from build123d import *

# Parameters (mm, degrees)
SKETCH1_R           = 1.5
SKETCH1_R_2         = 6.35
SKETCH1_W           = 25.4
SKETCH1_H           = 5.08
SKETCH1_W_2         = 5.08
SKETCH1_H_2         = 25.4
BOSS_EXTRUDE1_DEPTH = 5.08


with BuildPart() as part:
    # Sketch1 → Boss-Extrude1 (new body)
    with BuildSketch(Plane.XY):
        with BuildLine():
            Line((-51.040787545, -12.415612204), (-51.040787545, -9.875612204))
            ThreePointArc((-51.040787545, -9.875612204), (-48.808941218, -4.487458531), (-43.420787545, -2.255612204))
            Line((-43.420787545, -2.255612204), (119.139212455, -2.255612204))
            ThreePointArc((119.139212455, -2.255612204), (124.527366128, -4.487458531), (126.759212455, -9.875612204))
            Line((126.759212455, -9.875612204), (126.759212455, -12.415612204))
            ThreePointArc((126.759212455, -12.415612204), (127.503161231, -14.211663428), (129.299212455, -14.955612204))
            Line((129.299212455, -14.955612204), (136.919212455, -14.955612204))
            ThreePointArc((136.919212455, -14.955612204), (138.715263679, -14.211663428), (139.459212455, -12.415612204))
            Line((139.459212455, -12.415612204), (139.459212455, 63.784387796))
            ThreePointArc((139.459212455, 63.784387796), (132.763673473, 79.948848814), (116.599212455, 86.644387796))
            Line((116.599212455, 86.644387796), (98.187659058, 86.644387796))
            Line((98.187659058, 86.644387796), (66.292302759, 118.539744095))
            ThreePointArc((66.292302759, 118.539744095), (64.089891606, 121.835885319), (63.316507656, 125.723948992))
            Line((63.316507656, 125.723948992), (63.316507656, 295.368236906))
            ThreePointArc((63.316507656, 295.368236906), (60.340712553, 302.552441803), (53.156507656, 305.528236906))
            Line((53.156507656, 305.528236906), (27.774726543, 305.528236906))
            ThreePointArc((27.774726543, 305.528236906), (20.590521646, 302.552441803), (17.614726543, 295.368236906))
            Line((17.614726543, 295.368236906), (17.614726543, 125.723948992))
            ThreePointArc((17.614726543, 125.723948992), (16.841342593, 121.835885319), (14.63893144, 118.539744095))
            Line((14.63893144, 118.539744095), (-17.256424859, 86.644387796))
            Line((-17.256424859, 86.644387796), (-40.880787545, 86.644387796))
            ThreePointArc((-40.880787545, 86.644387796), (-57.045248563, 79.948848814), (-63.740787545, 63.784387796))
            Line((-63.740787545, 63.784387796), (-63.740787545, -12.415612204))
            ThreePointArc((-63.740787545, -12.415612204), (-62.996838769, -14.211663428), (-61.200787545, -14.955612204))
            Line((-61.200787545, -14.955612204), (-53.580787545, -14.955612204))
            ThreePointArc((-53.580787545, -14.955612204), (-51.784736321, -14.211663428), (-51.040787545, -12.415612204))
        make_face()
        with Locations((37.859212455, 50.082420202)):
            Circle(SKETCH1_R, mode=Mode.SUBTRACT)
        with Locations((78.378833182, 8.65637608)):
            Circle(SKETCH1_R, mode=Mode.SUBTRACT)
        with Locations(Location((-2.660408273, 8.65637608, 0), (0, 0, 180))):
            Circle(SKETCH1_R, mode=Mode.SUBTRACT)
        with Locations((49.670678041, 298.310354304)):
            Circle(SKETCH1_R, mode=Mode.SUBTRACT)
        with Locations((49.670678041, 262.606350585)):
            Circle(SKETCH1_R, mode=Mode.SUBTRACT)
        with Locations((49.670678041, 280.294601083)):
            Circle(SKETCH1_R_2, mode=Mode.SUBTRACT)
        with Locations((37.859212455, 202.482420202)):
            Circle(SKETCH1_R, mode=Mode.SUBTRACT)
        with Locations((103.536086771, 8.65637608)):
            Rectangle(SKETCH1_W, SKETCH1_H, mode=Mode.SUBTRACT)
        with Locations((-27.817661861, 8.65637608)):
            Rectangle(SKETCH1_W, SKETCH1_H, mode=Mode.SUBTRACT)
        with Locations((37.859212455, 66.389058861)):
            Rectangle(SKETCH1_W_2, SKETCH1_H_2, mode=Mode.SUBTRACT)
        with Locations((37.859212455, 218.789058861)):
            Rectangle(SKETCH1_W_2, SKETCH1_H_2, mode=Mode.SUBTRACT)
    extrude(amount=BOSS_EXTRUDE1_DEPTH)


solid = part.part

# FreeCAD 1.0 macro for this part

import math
import FreeCAD as App
import Part
import Sketcher
from FreeCAD import Vector
Q = App.Units.Quantity


def add_polygon(sketch, points):
    """Adds a closed chain of lines whose ends are joined by coincident constraints."""
    first, n = sketch.GeometryCount, len(points)
    for a, b in zip(points, points[1:] + points[:1]):
        sketch.addGeometry(Part.LineSegment(App.Vector(*a, 0), App.Vector(*b, 0)), False)
    for i in range(n):
        sketch.addConstraint(Sketcher.Constraint("Coincident", first + i, 2, first + (i + 1) % n, 1))

doc = App.newDocument("Part")
params = doc.addObject("Spreadsheet::Sheet", "Params")
for row, (alias, value) in enumerate([
    ("sketch1_diameter", "0.5 in"),
    ("sketch1_radius", "0.3 in"),
    ("sketch1_radius2", "0.1 in"),
    ("sketch1_radius3", "0.9 in"),
    ("sketch1_radius4", "0.4 in"),
    ("pad1_length", "0.2 in"),
], start=1):
    params.set(f"A{row}", alias)
    params.set(f"B{row}", "=" + value)
    params.setAlias(f"B{row}", alias)

body = doc.addObject("PartDesign::Body", "Body")

sketch1 = doc.addObject("Sketcher::SketchObject", "Sketch")
body.addObject(sketch1)
sketch1.AttachmentSupport = (doc.XY_Plane, [""])
sketch1.MapMode = "FlatFace"
sketch1.addGeometry(Part.LineSegment(Vector(-51, -12.4, 0), Vector(-51, -9.9, 0)), False)
sketch1.addGeometry(Part.ArcOfCircle(Part.Circle(Vector(-43.4, -9.9, 0), Vector(0, 0, 1), 7.6), math.radians(90), math.radians(180)), False)
sketch1.addGeometry(Part.LineSegment(Vector(-43.4, -2.3, 0), Vector(119.1, -2.3, 0)), False)
sketch1.addGeometry(Part.ArcOfCircle(Part.Circle(Vector(119.1, -9.9, 0), Vector(0, 0, 1), 7.6), math.radians(0), math.radians(90)), False)
sketch1.addGeometry(Part.LineSegment(Vector(126.8, -9.9, 0), Vector(126.8, -12.4, 0)), False)
sketch1.addGeometry(Part.ArcOfCircle(Part.Circle(Vector(129.3, -12.4, 0), Vector(0, 0, 1), 2.5), math.radians(-180), math.radians(-90)), False)
sketch1.addGeometry(Part.LineSegment(Vector(129.3, -15, 0), Vector(136.9, -15, 0)), False)
sketch1.addGeometry(Part.ArcOfCircle(Part.Circle(Vector(136.9, -12.4, 0), Vector(0, 0, 1), 2.5), math.radians(-90), math.radians(0)), False)
sketch1.addGeometry(Part.LineSegment(Vector(139.5, -12.4, 0), Vector(139.5, 63.8, 0)), False)
sketch1.addGeometry(Part.ArcOfCircle(Part.Circle(Vector(116.6, 63.8, 0), Vector(0, 0, 1), 22.9), math.radians(0), math.radians(90)), False)
sketch1.addGeometry(Part.LineSegment(Vector(116.6, 86.6, 0), Vector(98.2, 86.6, 0)), False)
sketch1.addGeometry(Part.LineSegment(Vector(98.2, 86.6, 0), Vector(66.3, 118.5, 0)), False)
sketch1.addGeometry(Part.ArcOfCircle(Part.Circle(Vector(73.5, 125.7, 0), Vector(0, 0, 1), 10.2), math.radians(-180), math.radians(-135)), False)
sketch1.addGeometry(Part.LineSegment(Vector(63.3, 125.7, 0), Vector(63.3, 295.4, 0)), False)
sketch1.addGeometry(Part.ArcOfCircle(Part.Circle(Vector(53.2, 295.4, 0), Vector(0, 0, 1), 10.2), math.radians(0), math.radians(90)), False)
sketch1.addGeometry(Part.LineSegment(Vector(53.2, 305.5, 0), Vector(27.8, 305.5, 0)), False)
sketch1.addGeometry(Part.ArcOfCircle(Part.Circle(Vector(27.8, 295.4, 0), Vector(0, 0, 1), 10.2), math.radians(90), math.radians(180)), False)
sketch1.addGeometry(Part.LineSegment(Vector(17.6, 295.4, 0), Vector(17.6, 125.7, 0)), False)
sketch1.addGeometry(Part.ArcOfCircle(Part.Circle(Vector(7.5, 125.7, 0), Vector(0, 0, 1), 10.2), math.radians(-45), math.radians(0)), False)
sketch1.addGeometry(Part.LineSegment(Vector(14.6, 118.5, 0), Vector(-17.3, 86.6, 0)), False)
sketch1.addGeometry(Part.LineSegment(Vector(-17.3, 86.6, 0), Vector(-40.9, 86.6, 0)), False)
sketch1.addGeometry(Part.ArcOfCircle(Part.Circle(Vector(-40.9, 63.8, 0), Vector(0, 0, 1), 22.9), math.radians(90), math.radians(180)), False)
sketch1.addGeometry(Part.LineSegment(Vector(-63.7, 63.8, 0), Vector(-63.7, -12.4, 0)), False)
sketch1.addGeometry(Part.ArcOfCircle(Part.Circle(Vector(-61.2, -12.4, 0), Vector(0, 0, 1), 2.5), math.radians(-180), math.radians(-90)), False)
sketch1.addGeometry(Part.LineSegment(Vector(-61.2, -15, 0), Vector(-53.6, -15, 0)), False)
sketch1.addGeometry(Part.ArcOfCircle(Part.Circle(Vector(-53.6, -12.4, 0), Vector(0, 0, 1), 2.5), math.radians(-90), math.radians(0)), False)
add_polygon(sketch1, [(-15.1, 6.1), (-40.5, 6.1), (-40.5, 11.2), (-15.1, 11.2)])
sketch1.addGeometry(Part.Circle(Vector(-2.7, 8.7, 0), Vector(0, 0, 1), 1.5), False)
sketch1.addGeometry(Part.Circle(Vector(37.9, 50.1, 0), Vector(0, 0, 1), 1.5), False)
add_polygon(sketch1, [(40.4, 53.7), (35.3, 53.7), (35.3, 79.1), (40.4, 79.1)])
sketch1.addGeometry(Part.Circle(Vector(78.4, 8.7, 0), Vector(0, 0, 1), 1.5), False)
add_polygon(sketch1, [(116.2, 6.1), (90.8, 6.1), (90.8, 11.2), (116.2, 11.2)])
sketch1.addGeometry(Part.Circle(Vector(37.9, 202.5, 0), Vector(0, 0, 1), 1.5), False)
add_polygon(sketch1, [(40.4, 206.1), (35.3, 206.1), (35.3, 231.5), (40.4, 231.5)])
sketch1.addGeometry(Part.Circle(Vector(49.7, 262.6, 0), Vector(0, 0, 1), 1.5), False)
sketch1.addGeometry(Part.Circle(Vector(49.7, 280.3, 0), Vector(0, 0, 1), 6.3), False)
sketch1.addGeometry(Part.Circle(Vector(49.7, 298.3, 0), Vector(0, 0, 1), 1.5), False)
sketch1.addConstraint(Sketcher.Constraint("Tangent", 0, 2, 1, 2))
sketch1.addConstraint(Sketcher.Constraint("Tangent", 1, 1, 2, 1))
sketch1.addConstraint(Sketcher.Constraint("Tangent", 2, 2, 3, 2))
sketch1.addConstraint(Sketcher.Constraint("Tangent", 3, 1, 4, 1))
sketch1.addConstraint(Sketcher.Constraint("Tangent", 4, 2, 5, 1))
sketch1.addConstraint(Sketcher.Constraint("Tangent", 5, 2, 6, 1))
sketch1.addConstraint(Sketcher.Constraint("Tangent", 6, 2, 7, 1))
sketch1.addConstraint(Sketcher.Constraint("Tangent", 7, 2, 8, 1))
sketch1.addConstraint(Sketcher.Constraint("Tangent", 8, 2, 9, 1))
sketch1.addConstraint(Sketcher.Constraint("Tangent", 9, 2, 10, 1))
sketch1.addConstraint(Sketcher.Constraint("Coincident", 10, 2, 11, 1))
sketch1.addConstraint(Sketcher.Constraint("Tangent", 11, 2, 12, 2))
sketch1.addConstraint(Sketcher.Constraint("Tangent", 12, 1, 13, 1))
sketch1.addConstraint(Sketcher.Constraint("Tangent", 13, 2, 14, 1))
sketch1.addConstraint(Sketcher.Constraint("Tangent", 14, 2, 15, 1))
sketch1.addConstraint(Sketcher.Constraint("Tangent", 15, 2, 16, 1))
sketch1.addConstraint(Sketcher.Constraint("Tangent", 16, 2, 17, 1))
sketch1.addConstraint(Sketcher.Constraint("Tangent", 17, 2, 18, 2))
sketch1.addConstraint(Sketcher.Constraint("Tangent", 18, 1, 19, 1))
sketch1.addConstraint(Sketcher.Constraint("Coincident", 19, 2, 20, 1))
sketch1.addConstraint(Sketcher.Constraint("Tangent", 20, 2, 21, 1))
sketch1.addConstraint(Sketcher.Constraint("Tangent", 21, 2, 22, 1))
sketch1.addConstraint(Sketcher.Constraint("Tangent", 22, 2, 23, 1))
sketch1.addConstraint(Sketcher.Constraint("Tangent", 23, 2, 24, 1))
sketch1.addConstraint(Sketcher.Constraint("Tangent", 24, 2, 25, 1))
sketch1.addConstraint(Sketcher.Constraint("Tangent", 25, 2, 0, 1))
sketch1.addConstraint(Sketcher.Constraint("Vertical", 0))
sketch1.addConstraint(Sketcher.Constraint("Horizontal", 2))
sketch1.addConstraint(Sketcher.Constraint("Vertical", 4))
sketch1.addConstraint(Sketcher.Constraint("Horizontal", 6))
sketch1.addConstraint(Sketcher.Constraint("Vertical", 8))
sketch1.addConstraint(Sketcher.Constraint("Horizontal", 10))
sketch1.addConstraint(Sketcher.Constraint("Vertical", 13))
sketch1.addConstraint(Sketcher.Constraint("Horizontal", 15))
sketch1.addConstraint(Sketcher.Constraint("Vertical", 17))
sketch1.addConstraint(Sketcher.Constraint("Horizontal", 20))
sketch1.addConstraint(Sketcher.Constraint("Vertical", 22))
sketch1.addConstraint(Sketcher.Constraint("Horizontal", 24))
sketch1.addConstraint(Sketcher.Constraint("Horizontal", 26))
sketch1.addConstraint(Sketcher.Constraint("Vertical", 27))
sketch1.addConstraint(Sketcher.Constraint("Horizontal", 28))
sketch1.addConstraint(Sketcher.Constraint("Vertical", 29))
sketch1.addConstraint(Sketcher.Constraint("Horizontal", 32))
sketch1.addConstraint(Sketcher.Constraint("Vertical", 33))
sketch1.addConstraint(Sketcher.Constraint("Horizontal", 34))
sketch1.addConstraint(Sketcher.Constraint("Vertical", 35))
sketch1.addConstraint(Sketcher.Constraint("Horizontal", 37))
sketch1.addConstraint(Sketcher.Constraint("Vertical", 38))
sketch1.addConstraint(Sketcher.Constraint("Horizontal", 39))
sketch1.addConstraint(Sketcher.Constraint("Vertical", 40))
sketch1.addConstraint(Sketcher.Constraint("Horizontal", 42))
sketch1.addConstraint(Sketcher.Constraint("Vertical", 43))
sketch1.addConstraint(Sketcher.Constraint("Horizontal", 44))
sketch1.addConstraint(Sketcher.Constraint("Vertical", 45))
sketch1.addConstraint(Sketcher.Constraint("Equal", 1, 3))
sketch1.addConstraint(Sketcher.Constraint("Equal", 5, 7))
sketch1.addConstraint(Sketcher.Constraint("Equal", 12, 14))
sketch1.addConstraint(Sketcher.Constraint("Equal", 14, 16))
sketch1.addConstraint(Sketcher.Constraint("Equal", 16, 18))
sketch1.addConstraint(Sketcher.Constraint("Equal", 9, 21))
sketch1.addConstraint(Sketcher.Constraint("Equal", 7, 23))
sketch1.addConstraint(Sketcher.Constraint("Equal", 23, 25))
sketch1.addConstraint(Sketcher.Constraint("Equal", 30, 31))
sketch1.addConstraint(Sketcher.Constraint("Equal", 31, 36))
sketch1.addConstraint(Sketcher.Constraint("Equal", 36, 41))
sketch1.addConstraint(Sketcher.Constraint("Equal", 41, 46))
sketch1.addConstraint(Sketcher.Constraint("Equal", 46, 48))
sketch1.addConstraint(Sketcher.Constraint("Perpendicular", 11, 19))
sketch1.addConstraint(Sketcher.Constraint("Horizontal", 12, 3, 18, 3))
sketch1.addConstraint(Sketcher.Constraint("Horizontal", 9, 3, 21, 3))
sketch1.addConstraint(Sketcher.Constraint("Horizontal", 7, 3, 23, 3))
sketch1.addConstraint(Sketcher.Constraint("Horizontal", 30, 3, 36, 3))
sketch1.addConstraint(Sketcher.Constraint("Horizontal", 11, 2, 18, 1))
sketch1.addConstraint(Sketcher.Constraint("Horizontal", 29, 2, 37, 2))
sketch1.addConstraint(Sketcher.Constraint("Horizontal", 28, 2, 38, 2))
sketch1.addConstraint(Sketcher.Constraint("Vertical", 31, 3, 41, 3))
sketch1.addConstraint(Sketcher.Constraint("Vertical", 46, 3, 47, 3))
sketch1.addConstraint(Sketcher.Constraint("Vertical", 47, 3, 48, 3))
sketch1.addConstraint(Sketcher.Constraint("Vertical", 33, 2, 42, 2))
sketch1.addConstraint(Sketcher.Constraint("Vertical", 35, 2, 44, 2))
sketch1.addConstraint(Sketcher.Constraint("Equal", 6, 24))
sketch1.addConstraint(Sketcher.Constraint("Equal", 28, 37))
sketch1.addConstraint(Sketcher.Constraint("Equal", 44, 27))
sketch1.addConstraint(Sketcher.Constraint("Equal", 39, 33))
sketch1.addConstraint(Sketcher.Constraint("Equal", 35, 43))
sketch1.addConstraint(Sketcher.Constraint("Diameter", 47, Q("0.5 in")))
sketch1.addConstraint(Sketcher.Constraint("Radius", 1, Q("0.3 in")))
sketch1.addConstraint(Sketcher.Constraint("Radius", 5, Q("0.1 in")))
sketch1.addConstraint(Sketcher.Constraint("Radius", 9, Q("0.9 in")))
sketch1.addConstraint(Sketcher.Constraint("Radius", 12, Q("0.4 in")))
sketch1.addConstraint(Sketcher.Constraint("DistanceX", 26, 2, 26, 1, Q("1 in")))
sketch1.addConstraint(Sketcher.Constraint("DistanceY", 8, 1, 8, 2, Q("3 in")))
sketch1.addConstraint(Sketcher.Constraint("DistanceX", 2, 1, 2, 2, Q("6.4 in")))
sketch1.addConstraint(Sketcher.Constraint("DistanceX", 6, 1, 6, 2, Q("0.3 in")))
sketch1.addConstraint(Sketcher.Constraint("DistanceX", 32, 2, 32, 1, Q("0.2 in")))
sketch1.addConstraint(Sketcher.Constraint("DistanceY", 0, 1, 0, 2, Q("0.1 in")))
sketch1.addConstraint(Sketcher.Constraint("Diameter", 30, 3.0))
sketch1.addConstraint(Sketcher.Constraint("DistanceX", 15, 2, 15, 1, 25.381781))
sketch1.addConstraint(Sketcher.Constraint("DistanceY", -1, 1, 47, 3, 280.294601))
sketch1.addConstraint(Sketcher.Constraint("DistanceX", 10, 2, 10, 1, 18.411553))
sketch1.addConstraint(Sketcher.Constraint("DistanceX", 20, 2, 20, 1, 23.624363))
sketch1.addConstraint(Sketcher.Constraint("DistanceY", 13, 1, 13, 2, 169.644288))
sketch1.addConstraint(Sketcher.Constraint("DistanceY", -1, 1, 12, 3, 125.723949))
sketch1.addConstraint(Sketcher.Constraint("DistanceX", 30, 3, -1, 1, 2.660408))
sketch1.addConstraint(Sketcher.Constraint("DistanceY", -1, 1, 31, 3, 50.08242))
sketch1.addConstraint(Sketcher.Constraint("DistanceY", -1, 1, 41, 3, 202.48242))
sketch1.addConstraint(Sketcher.Constraint("DistanceX", -1, 1, 46, 3, 49.670678))
sketch1.addConstraint(Sketcher.Constraint("DistanceY", -1, 1, 46, 3, 262.606351))
sketch1.addConstraint(Sketcher.Constraint("DistanceX", -1, 1, 10, 2, 98.187659))
sketch1.addConstraint(Sketcher.Constraint("DistanceX", 26, 2, -1, 1, 40.517662))
sketch1.addConstraint(Sketcher.Constraint("DistanceY", -1, 1, 32, 2, 53.689059))
sketch1.addConstraint(Sketcher.Constraint("DistanceY", -1, 1, 42, 2, 206.089059))
sketch1.addConstraint(Sketcher.Constraint("DistanceY", -1, 1, 30, 3, 8.656376))
sketch1.addConstraint(Sketcher.Constraint("DistanceX", -1, 1, 31, 3, 37.859212))
sketch1.addConstraint(Sketcher.Constraint("DistanceX", -1, 1, 36, 3, 78.378833))
sketch1.addConstraint(Sketcher.Constraint("DistanceY", -1, 1, 48, 3, 298.310354))
sketch1.addConstraint(Sketcher.Constraint("DistanceY", -1, 1, 26, 2, 6.116376))
sketch1.addConstraint(Sketcher.Constraint("DistanceX", -1, 1, 32, 2, 35.319212))
sketch1.addConstraint(Sketcher.Constraint("DistanceX", -1, 1, 37, 2, 90.836087))
sketch1.setExpression("Constraints[101]", "Params.sketch1_diameter")
sketch1.setExpression("Constraints[102]", "Params.sketch1_radius")
sketch1.setExpression("Constraints[103]", "Params.sketch1_radius2")
sketch1.setExpression("Constraints[104]", "Params.sketch1_radius3")
sketch1.setExpression("Constraints[105]", "Params.sketch1_radius4")
pad1 = doc.addObject("PartDesign::Pad", "Pad")
body.addObject(pad1)
pad1.Profile = sketch1
pad1.setExpression("Length", "Params.pad1_length")

doc.recompute()
